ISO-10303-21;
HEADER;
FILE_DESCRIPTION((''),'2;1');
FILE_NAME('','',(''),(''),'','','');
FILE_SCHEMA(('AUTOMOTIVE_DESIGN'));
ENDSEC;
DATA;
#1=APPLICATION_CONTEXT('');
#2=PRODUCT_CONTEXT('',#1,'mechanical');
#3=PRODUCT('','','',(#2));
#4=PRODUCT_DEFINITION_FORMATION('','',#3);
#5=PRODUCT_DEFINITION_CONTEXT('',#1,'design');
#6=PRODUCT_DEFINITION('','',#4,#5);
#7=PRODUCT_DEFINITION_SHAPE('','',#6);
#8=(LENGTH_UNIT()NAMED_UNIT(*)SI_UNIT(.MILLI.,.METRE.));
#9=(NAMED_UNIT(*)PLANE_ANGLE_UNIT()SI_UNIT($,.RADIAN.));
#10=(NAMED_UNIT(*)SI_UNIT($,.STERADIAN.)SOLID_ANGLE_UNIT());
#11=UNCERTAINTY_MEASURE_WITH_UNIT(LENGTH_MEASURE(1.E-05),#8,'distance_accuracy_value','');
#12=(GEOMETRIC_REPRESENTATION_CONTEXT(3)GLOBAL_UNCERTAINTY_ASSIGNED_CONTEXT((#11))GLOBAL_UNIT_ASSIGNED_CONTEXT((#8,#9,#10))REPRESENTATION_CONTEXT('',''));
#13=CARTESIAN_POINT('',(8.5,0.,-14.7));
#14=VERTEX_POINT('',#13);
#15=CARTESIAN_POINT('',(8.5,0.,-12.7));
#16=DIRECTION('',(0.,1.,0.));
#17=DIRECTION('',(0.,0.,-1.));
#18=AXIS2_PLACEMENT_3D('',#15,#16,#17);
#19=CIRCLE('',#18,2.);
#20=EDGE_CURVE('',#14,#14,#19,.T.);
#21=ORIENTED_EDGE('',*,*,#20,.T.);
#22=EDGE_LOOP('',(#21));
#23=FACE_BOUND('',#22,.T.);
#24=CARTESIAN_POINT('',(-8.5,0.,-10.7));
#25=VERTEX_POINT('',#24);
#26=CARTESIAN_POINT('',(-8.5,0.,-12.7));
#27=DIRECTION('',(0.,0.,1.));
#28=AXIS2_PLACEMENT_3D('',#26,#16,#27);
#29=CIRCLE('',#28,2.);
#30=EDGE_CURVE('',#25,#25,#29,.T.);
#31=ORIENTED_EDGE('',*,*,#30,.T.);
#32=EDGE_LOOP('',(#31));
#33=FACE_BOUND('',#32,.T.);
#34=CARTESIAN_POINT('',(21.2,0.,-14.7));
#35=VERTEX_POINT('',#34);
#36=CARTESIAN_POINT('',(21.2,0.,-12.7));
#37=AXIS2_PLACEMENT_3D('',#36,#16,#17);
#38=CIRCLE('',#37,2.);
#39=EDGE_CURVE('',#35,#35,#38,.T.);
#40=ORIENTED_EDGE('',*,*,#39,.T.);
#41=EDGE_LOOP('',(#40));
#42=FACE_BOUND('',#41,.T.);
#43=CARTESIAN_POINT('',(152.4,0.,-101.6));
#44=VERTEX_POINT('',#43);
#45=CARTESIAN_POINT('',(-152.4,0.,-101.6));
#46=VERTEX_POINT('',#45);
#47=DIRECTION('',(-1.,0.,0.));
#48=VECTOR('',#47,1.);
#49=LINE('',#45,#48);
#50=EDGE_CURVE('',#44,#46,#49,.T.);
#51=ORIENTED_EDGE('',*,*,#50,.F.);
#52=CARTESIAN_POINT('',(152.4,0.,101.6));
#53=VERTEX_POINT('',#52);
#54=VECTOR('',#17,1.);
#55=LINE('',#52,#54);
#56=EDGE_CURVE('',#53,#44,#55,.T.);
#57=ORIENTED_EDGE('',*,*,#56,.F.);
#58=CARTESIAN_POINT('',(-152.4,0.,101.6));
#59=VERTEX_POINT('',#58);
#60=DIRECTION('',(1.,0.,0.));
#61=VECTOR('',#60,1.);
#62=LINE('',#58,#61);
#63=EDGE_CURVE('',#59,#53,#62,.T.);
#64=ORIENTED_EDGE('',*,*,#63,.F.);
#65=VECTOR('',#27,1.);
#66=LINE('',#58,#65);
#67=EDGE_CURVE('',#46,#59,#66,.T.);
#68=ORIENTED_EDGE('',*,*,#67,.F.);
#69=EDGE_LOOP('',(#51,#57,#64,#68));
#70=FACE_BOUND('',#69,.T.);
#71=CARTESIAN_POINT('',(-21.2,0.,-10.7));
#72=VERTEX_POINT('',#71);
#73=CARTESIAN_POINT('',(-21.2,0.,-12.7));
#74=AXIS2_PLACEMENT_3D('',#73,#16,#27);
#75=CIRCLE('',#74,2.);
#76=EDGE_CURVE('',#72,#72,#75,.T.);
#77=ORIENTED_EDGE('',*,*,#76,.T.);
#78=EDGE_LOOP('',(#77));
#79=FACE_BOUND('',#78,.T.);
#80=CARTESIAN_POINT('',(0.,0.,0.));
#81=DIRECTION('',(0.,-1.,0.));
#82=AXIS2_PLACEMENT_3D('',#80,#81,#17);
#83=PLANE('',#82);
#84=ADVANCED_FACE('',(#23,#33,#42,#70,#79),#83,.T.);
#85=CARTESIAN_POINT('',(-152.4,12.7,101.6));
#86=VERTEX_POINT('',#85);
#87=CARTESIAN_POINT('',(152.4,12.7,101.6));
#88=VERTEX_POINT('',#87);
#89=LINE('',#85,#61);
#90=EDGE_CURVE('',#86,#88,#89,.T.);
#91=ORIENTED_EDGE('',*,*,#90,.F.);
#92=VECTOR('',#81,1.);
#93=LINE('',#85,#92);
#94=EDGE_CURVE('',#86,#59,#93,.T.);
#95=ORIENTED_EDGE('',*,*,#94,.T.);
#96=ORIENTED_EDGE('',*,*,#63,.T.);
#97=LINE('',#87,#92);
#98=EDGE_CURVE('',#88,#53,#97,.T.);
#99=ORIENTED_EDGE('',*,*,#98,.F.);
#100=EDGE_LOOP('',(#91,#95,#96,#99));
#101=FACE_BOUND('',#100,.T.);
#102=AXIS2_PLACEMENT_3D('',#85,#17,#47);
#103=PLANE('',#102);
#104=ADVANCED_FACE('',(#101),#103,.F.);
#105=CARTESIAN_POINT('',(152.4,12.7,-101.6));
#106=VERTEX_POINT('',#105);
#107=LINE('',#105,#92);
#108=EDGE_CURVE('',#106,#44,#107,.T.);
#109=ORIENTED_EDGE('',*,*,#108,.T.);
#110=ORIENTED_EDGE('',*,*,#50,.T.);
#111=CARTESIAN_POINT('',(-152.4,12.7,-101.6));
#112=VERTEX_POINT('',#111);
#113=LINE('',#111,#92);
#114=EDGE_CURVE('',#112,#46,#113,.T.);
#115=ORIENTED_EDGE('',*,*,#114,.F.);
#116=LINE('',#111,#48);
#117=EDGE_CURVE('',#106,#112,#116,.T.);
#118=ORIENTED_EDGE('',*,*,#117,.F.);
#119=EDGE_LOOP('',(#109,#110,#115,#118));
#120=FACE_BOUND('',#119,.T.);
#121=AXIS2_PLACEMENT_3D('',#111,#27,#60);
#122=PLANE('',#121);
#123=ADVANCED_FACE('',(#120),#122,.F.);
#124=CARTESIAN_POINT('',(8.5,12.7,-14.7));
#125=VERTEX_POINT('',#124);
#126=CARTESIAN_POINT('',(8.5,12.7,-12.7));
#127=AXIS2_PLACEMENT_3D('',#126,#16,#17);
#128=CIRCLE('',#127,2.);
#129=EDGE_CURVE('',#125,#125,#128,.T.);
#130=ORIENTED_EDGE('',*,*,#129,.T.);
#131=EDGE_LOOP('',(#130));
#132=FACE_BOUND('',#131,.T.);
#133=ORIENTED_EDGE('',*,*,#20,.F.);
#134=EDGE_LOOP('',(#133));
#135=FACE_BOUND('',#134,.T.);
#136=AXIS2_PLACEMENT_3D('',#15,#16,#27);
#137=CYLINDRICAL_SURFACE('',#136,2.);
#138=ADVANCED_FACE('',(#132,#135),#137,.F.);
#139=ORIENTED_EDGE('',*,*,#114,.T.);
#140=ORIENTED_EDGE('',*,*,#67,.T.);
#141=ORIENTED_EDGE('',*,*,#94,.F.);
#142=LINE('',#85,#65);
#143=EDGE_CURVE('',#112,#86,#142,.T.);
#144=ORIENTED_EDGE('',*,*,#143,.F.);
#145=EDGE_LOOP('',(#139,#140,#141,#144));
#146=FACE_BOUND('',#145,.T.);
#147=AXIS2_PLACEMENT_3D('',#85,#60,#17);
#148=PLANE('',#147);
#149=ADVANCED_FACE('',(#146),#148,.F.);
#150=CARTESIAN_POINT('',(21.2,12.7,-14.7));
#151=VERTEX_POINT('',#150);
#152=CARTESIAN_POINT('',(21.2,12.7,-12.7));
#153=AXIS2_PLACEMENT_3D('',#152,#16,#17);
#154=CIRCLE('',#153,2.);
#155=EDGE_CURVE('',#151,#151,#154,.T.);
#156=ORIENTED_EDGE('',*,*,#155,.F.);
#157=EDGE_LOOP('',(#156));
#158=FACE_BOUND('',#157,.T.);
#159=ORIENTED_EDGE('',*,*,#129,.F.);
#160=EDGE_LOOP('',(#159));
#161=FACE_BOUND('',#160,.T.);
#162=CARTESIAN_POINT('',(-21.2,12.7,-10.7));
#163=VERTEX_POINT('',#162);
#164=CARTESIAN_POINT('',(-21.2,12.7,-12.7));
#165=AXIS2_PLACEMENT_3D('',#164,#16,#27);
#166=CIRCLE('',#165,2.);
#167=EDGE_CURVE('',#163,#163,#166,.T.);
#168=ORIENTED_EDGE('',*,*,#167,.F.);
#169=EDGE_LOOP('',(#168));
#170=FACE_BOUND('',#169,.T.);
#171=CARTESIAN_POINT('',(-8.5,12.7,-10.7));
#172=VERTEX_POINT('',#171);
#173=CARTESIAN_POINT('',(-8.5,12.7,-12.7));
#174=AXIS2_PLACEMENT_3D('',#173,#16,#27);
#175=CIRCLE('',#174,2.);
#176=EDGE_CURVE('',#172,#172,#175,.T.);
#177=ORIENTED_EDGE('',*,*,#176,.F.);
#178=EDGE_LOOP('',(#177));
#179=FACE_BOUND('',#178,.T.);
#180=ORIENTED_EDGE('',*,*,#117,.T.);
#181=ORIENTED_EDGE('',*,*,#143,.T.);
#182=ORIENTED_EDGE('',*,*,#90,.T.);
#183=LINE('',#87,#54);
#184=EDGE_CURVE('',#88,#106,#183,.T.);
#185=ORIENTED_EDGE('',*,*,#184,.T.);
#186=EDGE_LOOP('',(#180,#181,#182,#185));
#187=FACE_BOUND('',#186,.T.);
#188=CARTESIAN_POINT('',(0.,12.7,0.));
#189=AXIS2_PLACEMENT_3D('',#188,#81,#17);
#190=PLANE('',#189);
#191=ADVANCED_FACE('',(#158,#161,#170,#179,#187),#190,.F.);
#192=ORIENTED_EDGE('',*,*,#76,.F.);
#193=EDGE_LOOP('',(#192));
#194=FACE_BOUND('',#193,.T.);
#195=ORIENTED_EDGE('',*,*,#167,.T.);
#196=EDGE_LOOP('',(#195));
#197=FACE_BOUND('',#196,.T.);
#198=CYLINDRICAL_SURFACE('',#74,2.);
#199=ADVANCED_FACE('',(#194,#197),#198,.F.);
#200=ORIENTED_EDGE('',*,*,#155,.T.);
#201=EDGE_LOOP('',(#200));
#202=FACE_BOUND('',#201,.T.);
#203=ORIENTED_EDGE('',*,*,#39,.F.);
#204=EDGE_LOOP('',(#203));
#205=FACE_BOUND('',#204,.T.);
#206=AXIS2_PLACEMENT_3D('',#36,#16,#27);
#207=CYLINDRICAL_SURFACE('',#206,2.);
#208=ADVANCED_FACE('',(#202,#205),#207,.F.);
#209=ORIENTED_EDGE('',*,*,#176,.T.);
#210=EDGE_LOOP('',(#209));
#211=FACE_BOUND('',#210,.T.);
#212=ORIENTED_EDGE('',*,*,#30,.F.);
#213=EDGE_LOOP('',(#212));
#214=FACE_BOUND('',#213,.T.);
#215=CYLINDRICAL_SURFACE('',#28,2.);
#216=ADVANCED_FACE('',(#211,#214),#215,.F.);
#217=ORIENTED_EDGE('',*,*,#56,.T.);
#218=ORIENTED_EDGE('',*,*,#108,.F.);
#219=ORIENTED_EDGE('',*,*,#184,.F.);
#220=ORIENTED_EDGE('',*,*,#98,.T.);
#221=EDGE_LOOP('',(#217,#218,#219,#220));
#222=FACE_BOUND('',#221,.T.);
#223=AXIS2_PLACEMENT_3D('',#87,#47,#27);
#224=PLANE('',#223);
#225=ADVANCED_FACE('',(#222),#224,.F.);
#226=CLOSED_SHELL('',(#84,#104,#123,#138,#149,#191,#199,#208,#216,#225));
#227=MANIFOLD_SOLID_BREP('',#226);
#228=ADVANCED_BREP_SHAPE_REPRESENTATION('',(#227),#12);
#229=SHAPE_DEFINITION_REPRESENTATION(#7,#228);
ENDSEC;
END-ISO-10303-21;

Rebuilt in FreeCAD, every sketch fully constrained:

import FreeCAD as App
import Part
import Sketcher

V = App.Vector
Q = App.Units.Quantity

doc = App.newDocument("Part")
body = doc.addObject("PartDesign::Body", "Body")

sketch1 = body.newObject("Sketcher::SketchObject", "Sketch")
sketch1.AttachmentSupport = (doc.getObject("XZ_Plane"), [""])
sketch1.MapMode = "FlatFace"
sketch1.addGeometry([
    Part.LineSegment(V(-152.4, -101.6, 0), V(-152.4, 101.6, 0)),
    Part.LineSegment(V(-152.4, 101.6, 0), V(152.4, 101.6, 0)),
    Part.LineSegment(V(152.4, 101.6, 0), V(152.4, -101.6, 0)),
    Part.LineSegment(V(152.4, -101.6, 0), V(-152.4, -101.6, 0)),
], False)
sketch1.addConstraint([
    Sketcher.Constraint("Coincident", 0, 2, 1, 1),
    Sketcher.Constraint("Coincident", 1, 2, 2, 1),
    Sketcher.Constraint("Coincident", 2, 2, 3, 1),
    Sketcher.Constraint("Coincident", 3, 2, 0, 1),
    Sketcher.Constraint("Vertical", 0),
    Sketcher.Constraint("Horizontal", 1),
    Sketcher.Constraint("Vertical", 2),
    Sketcher.Constraint("Horizontal", 3),
    Sketcher.Constraint("Symmetric", 0, 2, 2, 2, -1, 1),
    Sketcher.Constraint("DistanceX", 1, 1, 1, 2, Q("12 in")),
    Sketcher.Constraint("DistanceY", 0, 1, 0, 2, Q("8 in")),
])
pad1 = body.newObject("PartDesign::Pad", "Pad")
pad1.Profile = sketch1
pad1.Length = Q("0.5 in")
pad1.Reversed = True

sketch2 = body.newObject("Sketcher::SketchObject", "Sketch001")
sketch2.AttachmentSupport = (doc.getObject("XZ_Plane"), [""])
sketch2.MapMode = "FlatFace"
sketch2.AttachmentOffset = App.Placement(V(0, 0, -0.5 * 25.4), App.Rotation())
sketch2.addGeometry([
    Part.Circle(V(-21.2, -12.7, 0), V(0, 0, 1), 2),
    Part.Circle(V(-8.5, -12.7, 0), V(0, 0, 1), 2),
    Part.Circle(V(21.2, -12.7, 0), V(0, 0, 1), 2),
    Part.Circle(V(8.5, -12.7, 0), V(0, 0, 1), 2),
], False)
sketch2.addConstraint([
    Sketcher.Constraint("Equal", 0, 1),
    Sketcher.Constraint("Equal", 1, 2),
    Sketcher.Constraint("Equal", 2, 3),
    Sketcher.Constraint("Symmetric", 0, 3, 2, 3, -2),
    Sketcher.Constraint("Symmetric", 1, 3, 3, 3, -2),
    Sketcher.Constraint("Horizontal", 0, 3, 1, 3),
    Sketcher.Constraint("DistanceY", 0, 3, -1, 1, Q("0.5 in")),
    Sketcher.Constraint("DistanceX", 0, 3, 1, 3, Q("0.5 in")),
    Sketcher.Constraint("Diameter", 0, 4.0),
    Sketcher.Constraint("DistanceX", 0, 3, -1, 1, 21.2),
])
pocket1 = body.newObject("PartDesign::Pocket", "Pocket")
pocket1.Profile = sketch2
pocket1.Type = "ThroughAll"
pocket1.Reversed = True

doc.recompute()
